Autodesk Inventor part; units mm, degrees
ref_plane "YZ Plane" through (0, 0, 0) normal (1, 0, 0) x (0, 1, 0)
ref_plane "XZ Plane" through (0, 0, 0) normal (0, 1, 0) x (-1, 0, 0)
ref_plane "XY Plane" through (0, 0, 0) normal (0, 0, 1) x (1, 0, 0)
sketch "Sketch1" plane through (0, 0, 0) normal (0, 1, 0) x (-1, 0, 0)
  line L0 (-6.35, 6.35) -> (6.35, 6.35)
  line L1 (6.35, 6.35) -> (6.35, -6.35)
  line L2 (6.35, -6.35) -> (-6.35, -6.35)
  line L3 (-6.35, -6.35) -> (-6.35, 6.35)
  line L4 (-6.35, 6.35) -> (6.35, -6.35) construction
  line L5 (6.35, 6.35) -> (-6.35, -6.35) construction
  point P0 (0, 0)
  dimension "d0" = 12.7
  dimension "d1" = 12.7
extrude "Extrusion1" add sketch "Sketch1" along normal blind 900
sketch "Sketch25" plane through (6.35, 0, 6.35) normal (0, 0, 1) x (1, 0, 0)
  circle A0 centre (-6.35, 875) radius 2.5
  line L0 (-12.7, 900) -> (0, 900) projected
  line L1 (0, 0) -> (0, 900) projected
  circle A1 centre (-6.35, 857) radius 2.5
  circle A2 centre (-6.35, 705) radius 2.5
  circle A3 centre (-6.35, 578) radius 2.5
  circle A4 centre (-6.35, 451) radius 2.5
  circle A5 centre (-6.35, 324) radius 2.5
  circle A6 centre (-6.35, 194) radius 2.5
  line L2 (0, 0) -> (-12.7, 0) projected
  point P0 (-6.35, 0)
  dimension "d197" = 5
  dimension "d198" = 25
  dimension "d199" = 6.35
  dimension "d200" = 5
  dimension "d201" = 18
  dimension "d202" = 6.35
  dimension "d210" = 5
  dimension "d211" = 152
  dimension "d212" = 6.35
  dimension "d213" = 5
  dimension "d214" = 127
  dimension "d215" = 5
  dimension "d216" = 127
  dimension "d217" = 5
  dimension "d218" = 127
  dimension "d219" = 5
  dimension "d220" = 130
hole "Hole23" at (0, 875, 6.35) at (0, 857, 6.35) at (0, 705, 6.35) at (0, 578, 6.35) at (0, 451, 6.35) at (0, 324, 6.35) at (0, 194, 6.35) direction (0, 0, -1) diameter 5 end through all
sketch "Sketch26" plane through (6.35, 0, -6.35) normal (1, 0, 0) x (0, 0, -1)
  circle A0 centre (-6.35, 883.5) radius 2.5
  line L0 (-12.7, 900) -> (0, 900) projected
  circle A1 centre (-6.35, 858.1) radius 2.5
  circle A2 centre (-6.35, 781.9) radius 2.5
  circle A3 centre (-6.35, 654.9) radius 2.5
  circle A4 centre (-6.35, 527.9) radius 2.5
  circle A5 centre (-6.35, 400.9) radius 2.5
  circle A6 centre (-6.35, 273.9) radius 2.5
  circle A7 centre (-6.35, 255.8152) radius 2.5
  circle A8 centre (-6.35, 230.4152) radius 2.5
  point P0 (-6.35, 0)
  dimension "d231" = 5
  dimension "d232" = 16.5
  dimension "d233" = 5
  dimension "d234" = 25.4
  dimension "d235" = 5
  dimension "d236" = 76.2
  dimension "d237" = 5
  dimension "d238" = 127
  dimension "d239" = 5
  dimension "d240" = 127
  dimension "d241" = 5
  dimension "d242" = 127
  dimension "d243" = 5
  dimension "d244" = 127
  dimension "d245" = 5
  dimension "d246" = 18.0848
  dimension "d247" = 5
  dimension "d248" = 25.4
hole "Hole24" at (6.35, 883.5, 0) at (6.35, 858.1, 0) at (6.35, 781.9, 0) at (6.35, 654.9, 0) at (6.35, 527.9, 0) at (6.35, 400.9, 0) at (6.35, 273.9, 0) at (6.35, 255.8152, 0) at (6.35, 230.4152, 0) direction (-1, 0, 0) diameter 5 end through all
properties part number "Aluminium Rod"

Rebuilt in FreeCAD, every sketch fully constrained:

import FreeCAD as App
import Part
import Sketcher

V = App.Vector


def add_polygon(sketch, points):
    """Adds a closed chain of lines whose ends are joined by coincident constraints."""
    first, n = sketch.GeometryCount, len(points)
    for a, b in zip(points, points[1:] + points[:1]):
        sketch.addGeometry(Part.LineSegment(App.Vector(*a, 0), App.Vector(*b, 0)), False)
    for i in range(n):
        sketch.addConstraint(Sketcher.Constraint("Coincident", first + i, 2, first + (i + 1) % n, 1))

doc = App.newDocument("Part")
body = doc.addObject("PartDesign::Body", "Body")

sketch1 = body.newObject("Sketcher::SketchObject", "Sketch")
sketch1.AttachmentSupport = (doc.getObject("XZ_Plane"), [""])
sketch1.MapMode = "FlatFace"
add_polygon(sketch1, [(-6, 6), (6, 6), (6, -6), (-6, -6)])
sketch1.addConstraint(Sketcher.Constraint("Horizontal", 0))
sketch1.addConstraint(Sketcher.Constraint("Vertical", 1))
sketch1.addConstraint(Sketcher.Constraint("Horizontal", 2))
sketch1.addConstraint(Sketcher.Constraint("Vertical", 3))
sketch1.addConstraint(Sketcher.Constraint("Symmetric", 0, 2, 2, 2, -1, 1))
sketch1.addConstraint(Sketcher.Constraint("Equal", 2, 1))
sketch1.addConstraint(Sketcher.Constraint("DistanceX", 0, 1, 0, 2, 12.7))
pad1 = body.newObject("PartDesign::Pad", "Pad")
pad1.Profile = sketch1
pad1.Length = 900
pad1.Reversed = True

sketch2 = body.newObject("Sketcher::SketchObject", "Sketch001")
sketch2.AttachmentSupport = (doc.getObject("XY_Plane"), [""])
sketch2.MapMode = "FlatFace"
sketch2.AttachmentOffset = App.Placement(V(0, 0, 6.35), App.Rotation())
sketch2.addGeometry(Part.Circle(V(0, 875, 0), V(0, 0, 1), 2.5), False)
sketch2.addGeometry(Part.Circle(V(0, 857, 0), V(0, 0, 1), 2.5), False)
sketch2.addGeometry(Part.Circle(V(0, 705, 0), V(0, 0, 1), 2.5), False)
sketch2.addGeometry(Part.Circle(V(0, 578, 0), V(0, 0, 1), 2.5), False)
sketch2.addGeometry(Part.Circle(V(0, 451, 0), V(0, 0, 1), 2.5), False)
sketch2.addGeometry(Part.Circle(V(0, 324, 0), V(0, 0, 1), 2.5), False)
sketch2.addGeometry(Part.Circle(V(0, 194, 0), V(0, 0, 1), 2.5), False)
sketch2.addConstraint(Sketcher.Constraint("Equal", 0, 1))
sketch2.addConstraint(Sketcher.Constraint("Equal", 1, 2))
sketch2.addConstraint(Sketcher.Constraint("Equal", 2, 3))
sketch2.addConstraint(Sketcher.Constraint("Equal", 3, 4))
sketch2.addConstraint(Sketcher.Constraint("Equal", 4, 5))
sketch2.addConstraint(Sketcher.Constraint("Equal", 5, 6))
sketch2.addConstraint(Sketcher.Constraint("PointOnObject", 0, 3, -2))
sketch2.addConstraint(Sketcher.Constraint("PointOnObject", 1, 3, -2))
sketch2.addConstraint(Sketcher.Constraint("PointOnObject", 2, 3, -2))
sketch2.addConstraint(Sketcher.Constraint("PointOnObject", 3, 3, -2))
sketch2.addConstraint(Sketcher.Constraint("PointOnObject", 4, 3, -2))
sketch2.addConstraint(Sketcher.Constraint("PointOnObject", 5, 3, -2))
sketch2.addConstraint(Sketcher.Constraint("PointOnObject", 6, 3, -2))
sketch2.addConstraint(Sketcher.Constraint("Diameter", 0, 5.0))
sketch2.addConstraint(Sketcher.Constraint("DistanceY", -1, 1, 0, 3, 875.0))
sketch2.addConstraint(Sketcher.Constraint("DistanceY", -1, 1, 1, 3, 857.0))
sketch2.addConstraint(Sketcher.Constraint("DistanceY", -1, 1, 2, 3, 705.0))
sketch2.addConstraint(Sketcher.Constraint("DistanceY", -1, 1, 3, 3, 578.0))
sketch2.addConstraint(Sketcher.Constraint("DistanceY", -1, 1, 4, 3, 451.0))
sketch2.addConstraint(Sketcher.Constraint("DistanceY", -1, 1, 5, 3, 324.0))
sketch2.addConstraint(Sketcher.Constraint("DistanceY", -1, 1, 6, 3, 194.0))
doc.recompute()
hole = body.newObject("PartDesign::Hole", "Hole")
hole.Profile = sketch2
hole.ThreadType = "None"
hole.Diameter = 5
hole.DepthType = "ThroughAll"

sketch3 = body.newObject("Sketcher::SketchObject", "Sketch002")
sketch3.AttachmentSupport = (doc.getObject("YZ_Plane"), [""])
sketch3.MapMode = "FlatFace"
sketch3.AttachmentOffset = App.Placement(V(0, 0, 6.35), App.Rotation())
sketch3.addGeometry(Part.Circle(V(883.5, 0, 0), V(0, 0, 1), 2.5), False)
sketch3.addGeometry(Part.Circle(V(858.1, 0, 0), V(0, 0, 1), 2.5), False)
sketch3.addGeometry(Part.Circle(V(781.9, 0, 0), V(0, 0, 1), 2.5), False)
sketch3.addGeometry(Part.Circle(V(654.9, 0, 0), V(0, 0, 1), 2.5), False)
sketch3.addGeometry(Part.Circle(V(527.9, 0, 0), V(0, 0, 1), 2.5), False)
sketch3.addGeometry(Part.Circle(V(400.9, 0, 0), V(0, 0, 1), 2.5), False)
sketch3.addGeometry(Part.Circle(V(273.9, 0, 0), V(0, 0, 1), 2.5), False)
sketch3.addGeometry(Part.Circle(V(255.8, 0, 0), V(0, 0, 1), 2.5), False)
sketch3.addGeometry(Part.Circle(V(230.4, 0, 0), V(0, 0, 1), 2.5), False)
sketch3.addConstraint(Sketcher.Constraint("Equal", 0, 1))
sketch3.addConstraint(Sketcher.Constraint("Equal", 1, 2))
sketch3.addConstraint(Sketcher.Constraint("Equal", 2, 3))
sketch3.addConstraint(Sketcher.Constraint("Equal", 3, 4))
sketch3.addConstraint(Sketcher.Constraint("Equal", 4, 5))
sketch3.addConstraint(Sketcher.Constraint("Equal", 5, 6))
sketch3.addConstraint(Sketcher.Constraint("Equal", 6, 7))
sketch3.addConstraint(Sketcher.Constraint("Equal", 7, 8))
sketch3.addConstraint(Sketcher.Constraint("PointOnObject", 0, 3, -1))
sketch3.addConstraint(Sketcher.Constraint("PointOnObject", 1, 3, -1))
sketch3.addConstraint(Sketcher.Constraint("PointOnObject", 2, 3, -1))
sketch3.addConstraint(Sketcher.Constraint("PointOnObject", 3, 3, -1))
sketch3.addConstraint(Sketcher.Constraint("PointOnObject", 4, 3, -1))
sketch3.addConstraint(Sketcher.Constraint("PointOnObject", 5, 3, -1))
sketch3.addConstraint(Sketcher.Constraint("PointOnObject", 6, 3, -1))
sketch3.addConstraint(Sketcher.Constraint("PointOnObject", 7, 3, -1))
sketch3.addConstraint(Sketcher.Constraint("PointOnObject", 8, 3, -1))
sketch3.addConstraint(Sketcher.Constraint("Diameter", 0, 5.0))
sketch3.addConstraint(Sketcher.Constraint("DistanceX", 3, 3, 2, 3, 127.0))
sketch3.addConstraint(Sketcher.Constraint("DistanceX", 4, 3, 3, 3, 127.0))
sketch3.addConstraint(Sketcher.Constraint("DistanceX", 5, 3, 4, 3, 127.0))
sketch3.addConstraint(Sketcher.Constraint("DistanceX", 6, 3, 5, 3, 127.0))
sketch3.addConstraint(Sketcher.Constraint("DistanceX", -1, 1, 0, 3, 883.5))
sketch3.addConstraint(Sketcher.Constraint("DistanceX", -1, 1, 1, 3, 858.1))
sketch3.addConstraint(Sketcher.Constraint("DistanceX", -1, 1, 2, 3, 781.9))
sketch3.addConstraint(Sketcher.Constraint("DistanceX", 8, 3, 7, 3, 25.4))
sketch3.addConstraint(Sketcher.Constraint("DistanceX", -1, 1, 7, 3, 255.8152))
doc.recompute()
hole2 = body.newObject("PartDesign::Hole", "Hole001")
hole2.Profile = sketch3
hole2.ThreadType = "None"
hole2.Diameter = 5
hole2.DepthType = "ThroughAll"

doc.recompute()
